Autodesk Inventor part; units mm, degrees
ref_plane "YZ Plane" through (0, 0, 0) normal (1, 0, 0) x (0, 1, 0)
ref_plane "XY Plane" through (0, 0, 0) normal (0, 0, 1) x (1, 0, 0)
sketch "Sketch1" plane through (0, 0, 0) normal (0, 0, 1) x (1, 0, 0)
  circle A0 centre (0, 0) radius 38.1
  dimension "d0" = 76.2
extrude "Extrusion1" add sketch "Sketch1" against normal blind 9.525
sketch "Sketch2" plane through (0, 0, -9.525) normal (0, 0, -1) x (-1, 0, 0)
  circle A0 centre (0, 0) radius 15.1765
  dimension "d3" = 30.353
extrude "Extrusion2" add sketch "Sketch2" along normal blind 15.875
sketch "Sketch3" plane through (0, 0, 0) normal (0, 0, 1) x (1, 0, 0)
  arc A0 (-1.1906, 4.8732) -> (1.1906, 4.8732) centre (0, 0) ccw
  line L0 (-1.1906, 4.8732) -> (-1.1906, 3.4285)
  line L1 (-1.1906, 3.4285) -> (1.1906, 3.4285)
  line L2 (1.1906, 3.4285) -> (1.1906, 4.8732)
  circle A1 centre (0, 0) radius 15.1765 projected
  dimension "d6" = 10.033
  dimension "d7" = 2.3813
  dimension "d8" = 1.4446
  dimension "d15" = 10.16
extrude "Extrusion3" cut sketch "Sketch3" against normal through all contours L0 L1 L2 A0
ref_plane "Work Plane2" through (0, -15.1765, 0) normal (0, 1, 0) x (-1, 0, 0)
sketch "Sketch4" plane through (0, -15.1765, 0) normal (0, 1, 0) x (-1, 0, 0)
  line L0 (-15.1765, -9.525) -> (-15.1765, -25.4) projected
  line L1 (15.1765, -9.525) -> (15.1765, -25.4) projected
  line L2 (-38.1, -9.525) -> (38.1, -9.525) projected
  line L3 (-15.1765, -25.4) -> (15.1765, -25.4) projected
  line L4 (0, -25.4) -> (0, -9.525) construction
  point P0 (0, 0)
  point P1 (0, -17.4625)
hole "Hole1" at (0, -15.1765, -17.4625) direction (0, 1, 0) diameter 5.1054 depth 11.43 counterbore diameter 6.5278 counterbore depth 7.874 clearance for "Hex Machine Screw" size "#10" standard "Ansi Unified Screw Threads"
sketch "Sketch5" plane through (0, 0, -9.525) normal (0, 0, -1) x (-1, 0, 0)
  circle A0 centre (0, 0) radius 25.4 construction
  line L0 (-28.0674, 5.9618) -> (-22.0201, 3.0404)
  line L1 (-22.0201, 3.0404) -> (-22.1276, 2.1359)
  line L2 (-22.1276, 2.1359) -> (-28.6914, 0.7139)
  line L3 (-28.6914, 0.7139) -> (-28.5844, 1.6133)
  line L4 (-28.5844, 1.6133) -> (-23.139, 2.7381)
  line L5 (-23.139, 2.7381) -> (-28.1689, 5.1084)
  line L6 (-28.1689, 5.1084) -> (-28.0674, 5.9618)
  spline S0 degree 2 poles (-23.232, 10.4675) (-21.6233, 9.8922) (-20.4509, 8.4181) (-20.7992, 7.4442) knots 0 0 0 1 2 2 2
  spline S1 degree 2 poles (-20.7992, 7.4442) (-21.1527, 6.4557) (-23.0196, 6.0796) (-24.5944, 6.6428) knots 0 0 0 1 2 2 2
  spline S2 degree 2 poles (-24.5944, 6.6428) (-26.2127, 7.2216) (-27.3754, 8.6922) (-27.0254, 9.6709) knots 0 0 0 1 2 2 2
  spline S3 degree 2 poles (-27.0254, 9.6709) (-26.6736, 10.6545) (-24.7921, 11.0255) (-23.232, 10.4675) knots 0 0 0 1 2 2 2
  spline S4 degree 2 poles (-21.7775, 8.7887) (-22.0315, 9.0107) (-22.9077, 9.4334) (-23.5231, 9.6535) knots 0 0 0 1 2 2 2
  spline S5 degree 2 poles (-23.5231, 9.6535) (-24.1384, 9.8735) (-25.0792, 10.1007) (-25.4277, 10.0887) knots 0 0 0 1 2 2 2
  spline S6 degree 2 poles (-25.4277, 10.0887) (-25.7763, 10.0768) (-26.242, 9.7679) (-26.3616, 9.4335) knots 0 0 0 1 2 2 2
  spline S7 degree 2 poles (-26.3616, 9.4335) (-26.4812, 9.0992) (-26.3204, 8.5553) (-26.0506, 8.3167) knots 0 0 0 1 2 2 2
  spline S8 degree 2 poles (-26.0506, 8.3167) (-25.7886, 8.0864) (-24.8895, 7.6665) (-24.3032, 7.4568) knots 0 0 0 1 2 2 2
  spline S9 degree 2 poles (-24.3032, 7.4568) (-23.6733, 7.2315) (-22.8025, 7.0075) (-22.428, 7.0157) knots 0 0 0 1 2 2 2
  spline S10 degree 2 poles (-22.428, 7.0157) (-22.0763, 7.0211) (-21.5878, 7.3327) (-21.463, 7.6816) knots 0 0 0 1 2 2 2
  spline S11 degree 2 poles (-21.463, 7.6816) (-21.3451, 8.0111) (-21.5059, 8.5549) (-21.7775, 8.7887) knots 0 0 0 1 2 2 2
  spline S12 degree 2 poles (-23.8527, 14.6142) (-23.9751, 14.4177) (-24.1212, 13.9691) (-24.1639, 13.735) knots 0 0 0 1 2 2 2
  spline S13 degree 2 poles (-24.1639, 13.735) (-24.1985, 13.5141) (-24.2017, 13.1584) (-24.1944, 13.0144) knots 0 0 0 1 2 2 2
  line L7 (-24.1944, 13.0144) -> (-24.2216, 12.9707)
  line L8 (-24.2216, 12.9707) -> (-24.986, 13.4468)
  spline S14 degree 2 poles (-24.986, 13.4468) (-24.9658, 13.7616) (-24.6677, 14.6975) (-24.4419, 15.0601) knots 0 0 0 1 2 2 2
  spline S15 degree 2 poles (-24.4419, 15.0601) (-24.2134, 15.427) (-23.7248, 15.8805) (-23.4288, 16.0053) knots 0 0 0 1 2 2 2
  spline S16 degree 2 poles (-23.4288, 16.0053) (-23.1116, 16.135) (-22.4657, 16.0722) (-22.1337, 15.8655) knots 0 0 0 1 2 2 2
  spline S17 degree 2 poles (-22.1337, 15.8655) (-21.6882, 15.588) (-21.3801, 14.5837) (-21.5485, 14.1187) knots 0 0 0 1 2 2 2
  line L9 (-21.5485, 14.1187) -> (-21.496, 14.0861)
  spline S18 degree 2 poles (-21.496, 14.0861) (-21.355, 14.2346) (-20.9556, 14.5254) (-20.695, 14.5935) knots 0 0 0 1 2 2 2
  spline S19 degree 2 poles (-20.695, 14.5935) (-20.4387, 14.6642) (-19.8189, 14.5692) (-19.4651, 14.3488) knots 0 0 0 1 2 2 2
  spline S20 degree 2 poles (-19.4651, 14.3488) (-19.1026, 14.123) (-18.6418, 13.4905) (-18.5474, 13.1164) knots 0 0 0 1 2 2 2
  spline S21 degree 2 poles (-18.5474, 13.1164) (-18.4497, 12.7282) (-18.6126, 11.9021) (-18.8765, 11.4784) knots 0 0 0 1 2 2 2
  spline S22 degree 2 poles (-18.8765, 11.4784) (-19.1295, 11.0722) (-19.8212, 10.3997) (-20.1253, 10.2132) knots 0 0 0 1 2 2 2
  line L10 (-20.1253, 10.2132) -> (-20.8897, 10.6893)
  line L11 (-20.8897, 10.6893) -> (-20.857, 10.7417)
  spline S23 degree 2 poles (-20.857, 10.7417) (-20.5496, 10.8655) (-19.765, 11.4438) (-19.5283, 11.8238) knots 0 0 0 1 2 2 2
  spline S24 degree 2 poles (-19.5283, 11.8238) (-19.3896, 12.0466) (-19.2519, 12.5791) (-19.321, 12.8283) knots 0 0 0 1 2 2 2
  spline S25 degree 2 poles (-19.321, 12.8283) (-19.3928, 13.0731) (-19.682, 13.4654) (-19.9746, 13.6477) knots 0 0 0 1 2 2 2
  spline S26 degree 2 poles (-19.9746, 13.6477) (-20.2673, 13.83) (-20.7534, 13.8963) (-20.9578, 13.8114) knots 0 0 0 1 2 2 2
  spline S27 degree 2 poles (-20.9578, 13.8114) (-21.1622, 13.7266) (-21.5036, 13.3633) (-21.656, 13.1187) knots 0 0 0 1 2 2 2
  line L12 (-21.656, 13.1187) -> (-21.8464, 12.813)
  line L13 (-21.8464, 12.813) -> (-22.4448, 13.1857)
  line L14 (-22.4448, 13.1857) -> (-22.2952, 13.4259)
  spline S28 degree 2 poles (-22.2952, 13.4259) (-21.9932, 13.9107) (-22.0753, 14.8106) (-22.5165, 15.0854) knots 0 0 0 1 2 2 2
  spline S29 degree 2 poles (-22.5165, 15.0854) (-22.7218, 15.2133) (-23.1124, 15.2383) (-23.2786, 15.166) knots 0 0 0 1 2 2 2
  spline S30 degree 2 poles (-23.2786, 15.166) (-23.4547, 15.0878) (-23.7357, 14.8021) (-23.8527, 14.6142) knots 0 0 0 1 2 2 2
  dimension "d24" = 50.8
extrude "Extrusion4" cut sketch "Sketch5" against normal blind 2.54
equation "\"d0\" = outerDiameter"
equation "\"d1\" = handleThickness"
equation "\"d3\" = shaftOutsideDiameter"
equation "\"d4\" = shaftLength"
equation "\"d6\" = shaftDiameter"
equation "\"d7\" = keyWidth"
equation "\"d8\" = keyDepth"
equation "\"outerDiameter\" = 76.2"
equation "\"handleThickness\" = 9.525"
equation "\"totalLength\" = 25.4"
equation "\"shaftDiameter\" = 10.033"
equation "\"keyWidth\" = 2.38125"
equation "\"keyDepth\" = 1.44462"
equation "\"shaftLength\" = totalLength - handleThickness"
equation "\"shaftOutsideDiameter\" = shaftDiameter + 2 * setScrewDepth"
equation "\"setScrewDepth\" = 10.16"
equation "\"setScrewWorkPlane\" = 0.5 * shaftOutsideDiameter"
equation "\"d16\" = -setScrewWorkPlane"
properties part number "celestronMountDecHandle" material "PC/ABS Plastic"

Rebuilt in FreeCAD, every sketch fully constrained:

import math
import FreeCAD as App
import Part
import Sketcher

V = App.Vector
Q = App.Units.Quantity


def add_polygon(sketch, points):
    """Adds a closed chain of lines whose ends are joined by coincident constraints."""
    first, n = sketch.GeometryCount, len(points)
    for a, b in zip(points, points[1:] + points[:1]):
        sketch.addGeometry(Part.LineSegment(App.Vector(*a, 0), App.Vector(*b, 0)), False)
    for i in range(n):
        sketch.addConstraint(Sketcher.Constraint("Coincident", first + i, 2, first + (i + 1) % n, 1))

doc = App.newDocument("Part")
params = doc.addObject("Spreadsheet::Sheet", "Params")
for row, (alias, value) in enumerate([
    ("sketch1_diameter", "3 in"),
    ("pad1_length", "0.375 in"),
    ("sketch2_diameter", "1.195 in"),
    ("pad2_length", "0.625 in"),
    ("sketch3_width", "0.093748 in"),
    ("sketch4_diameter", "0.201 in"),
    ("hole_diameter", "0.201 in"),
    ("hole_depth", "0.45 in"),
    ("hole_cbore_diameter", "0.257 in"),
    ("hole_cbore_depth", "0.31 in"),
    ("pocket2_length", "0.1 in"),
], start=1):
    params.set(f"A{row}", alias)
    params.set(f"B{row}", "=" + value)
    params.setAlias(f"B{row}", alias)

body = doc.addObject("PartDesign::Body", "Body")

sketch1 = body.newObject("Sketcher::SketchObject", "Sketch")
sketch1.AttachmentSupport = (doc.getObject("XY_Plane"), [""])
sketch1.MapMode = "FlatFace"
sketch1.addGeometry(Part.Circle(V(0, 0, 0), V(0, 0, 1), 38.1), False)
sketch1.addConstraint([
    Sketcher.Constraint("Coincident", 0, 3, -1, 1),
    Sketcher.Constraint("Diameter", 0, Q("3 in")),
])
sketch1.setExpression("Constraints[1]", "Params.sketch1_diameter")
pad1 = body.newObject("PartDesign::Pad", "Pad")
pad1.Profile = sketch1
pad1.setExpression("Length", "Params.pad1_length")
pad1.Reversed = True

sketch2 = body.newObject("Sketcher::SketchObject", "Sketch001")
sketch2.AttachmentSupport = (doc.getObject("XY_Plane"), [""])
sketch2.MapMode = "FlatFace"
sketch2.AttachmentOffset = App.Placement(V(0, 0, -0.375 * 25.4), App.Rotation())
sketch2.addGeometry(Part.Circle(V(0, 0, 0), V(0, 0, 1), 15.1765), False)
sketch2.addConstraint([
    Sketcher.Constraint("Coincident", 0, 3, -1, 1),
    Sketcher.Constraint("Diameter", 0, Q("1.195 in")),
])
sketch2.setExpression("Constraints[1]", "Params.sketch2_diameter")
pad2 = body.newObject("PartDesign::Pad", "Pad001")
pad2.Profile = sketch2
pad2.setExpression("Length", "Params.pad2_length")
pad2.Reversed = True

sketch3 = body.newObject("Sketcher::SketchObject", "Sketch002")
sketch3.AttachmentSupport = (doc.getObject("XY_Plane"), [""])
sketch3.MapMode = "FlatFace"
sketch3.addGeometry([
    Part.LineSegment(V(-1.1906, 3.4285, 0), V(-1.1906, 4.8732, 0)),
    Part.ArcOfCircle(Part.Circle(V(0, 0, 0), V(0, 0, 1), 5.016533), math.radians(103.729316), math.radians(436.270684)),
    Part.LineSegment(V(1.1906, 4.8732, 0), V(1.1906, 3.4285, 0)),
    Part.LineSegment(V(1.1906, 3.4285, 0), V(-1.1906, 3.4285, 0)),
], False)
sketch3.addConstraint([
    Sketcher.Constraint("Coincident", 0, 2, 1, 1),
    Sketcher.Constraint("Coincident", 1, 2, 2, 1),
    Sketcher.Constraint("Coincident", 2, 2, 3, 1),
    Sketcher.Constraint("Coincident", 3, 2, 0, 1),
    Sketcher.Constraint("Vertical", 0),
    Sketcher.Constraint("Vertical", 2),
    Sketcher.Constraint("Horizontal", 3),
    Sketcher.Constraint("Coincident", 1, 3, -1, 1),
    Sketcher.Constraint("Horizontal", 0, 2, 1, 2),
    Sketcher.Constraint("Radius", 1, Q("0.1975 in")),
    Sketcher.Constraint("DistanceX", 3, 2, 3, 1, Q("0.093748 in")),
    Sketcher.Constraint("DistanceY", 0, 1, 0, 2, 1.4447),
])
sketch3.setExpression("Constraints[10]", "Params.sketch3_width")
pocket1 = body.newObject("PartDesign::Pocket", "Pocket")
pocket1.Profile = sketch3
pocket1.Type = "ThroughAll"

sketch4 = body.newObject("Sketcher::SketchObject", "Sketch003")
sketch4.AttachmentSupport = (doc.getObject("XZ_Plane"), [""])
sketch4.MapMode = "FlatFace"
sketch4.AttachmentOffset = App.Placement(V(0, 0, 0.5975 * 25.4), App.Rotation())
sketch4.addGeometry(Part.Circle(V(0, -17.4625, 0), V(0, 0, 1), 2.5527), False)
sketch4.addConstraint([
    Sketcher.Constraint("PointOnObject", 0, 3, -2),
    Sketcher.Constraint("Diameter", 0, Q("0.201 in")),
    Sketcher.Constraint("DistanceY", 0, 3, -1, 1, Q("0.6875 in")),
])
sketch4.setExpression("Constraints[1]", "Params.sketch4_diameter")
doc.recompute()
hole = body.newObject("PartDesign::Hole", "Hole")
hole.Profile = sketch4
hole.ThreadType = "None"
hole.setExpression("Diameter", "Params.hole_diameter")
hole.DepthType = "Dimension"
hole.setExpression("Depth", "Params.hole_depth")
hole.DrillPoint = "Flat"
hole.HoleCutType = "Counterbore"
hole.setExpression("HoleCutDiameter", "Params.hole_cbore_diameter")
hole.setExpression("HoleCutDepth", "Params.hole_cbore_depth")

sketch5 = body.newObject("Sketcher::SketchObject", "Sketch004")
sketch5.AttachmentSupport = (doc.getObject("XY_Plane"), [""])
sketch5.MapMode = "FlatFace"
sketch5.AttachmentOffset = App.Placement(V(0, 0, -0.375 * 25.4), App.Rotation())
add_polygon(sketch5, [(22.0201, 3.0404), (28.0674, 5.9618), (28.1689, 5.1084), (23.139, 2.7381), (28.5844, 1.6133), (28.6914, 0.7139), (22.1276, 2.1359)])
sketch5.addGeometry(Part.BSplineCurve([V(23.232, 10.4675, 0), V(21.6233, 9.8922, 0), V(20.4509, 8.4181, 0), V(20.7992, 7.4442, 0)], [3, 1, 3], [0, 1, 2], False, 2, [1, 1, 1, 1], False), False)
sketch5.addGeometry(Part.BSplineCurve([V(27.0254, 9.6709, 0), V(26.6736, 10.6545, 0), V(24.7921, 11.0255, 0), V(23.232, 10.4675, 0)], [3, 1, 3], [0, 1, 2], False, 2, [1, 1, 1, 1], False), False)
sketch5.addGeometry(Part.BSplineCurve([V(24.5944, 6.6428, 0), V(26.2127, 7.2216, 0), V(27.3754, 8.6922, 0), V(27.0254, 9.6709, 0)], [3, 1, 3], [0, 1, 2], False, 2, [1, 1, 1, 1], False), False)
sketch5.addGeometry(Part.BSplineCurve([V(20.7992, 7.4442, 0), V(21.1527, 6.4557, 0), V(23.0196, 6.0796, 0), V(24.5944, 6.6428, 0)], [3, 1, 3], [0, 1, 2], False, 2, [1, 1, 1, 1], False), False)
sketch5.addGeometry(Part.BSplineCurve([V(21.7775, 8.7887, 0), V(22.0315, 9.0107, 0), V(22.9077, 9.4334, 0), V(23.5231, 9.6535, 0)], [3, 1, 3], [0, 1, 2], False, 2, [1, 1, 1, 1], False), False)
sketch5.addGeometry(Part.BSplineCurve([V(21.463, 7.6816, 0), V(21.3451, 8.0111, 0), V(21.5059, 8.5549, 0), V(21.7775, 8.7887, 0)], [3, 1, 3], [0, 1, 2], False, 2, [1, 1, 1, 1], False), False)
sketch5.addGeometry(Part.BSplineCurve([V(22.428, 7.0157, 0), V(22.0763, 7.0211, 0), V(21.5878, 7.3327, 0), V(21.463, 7.6816, 0)], [3, 1, 3], [0, 1, 2], False, 2, [1, 1, 1, 1], False), False)
sketch5.addGeometry(Part.BSplineCurve([V(24.3032, 7.4568, 0), V(23.6733, 7.2315, 0), V(22.8025, 7.0075, 0), V(22.428, 7.0157, 0)], [3, 1, 3], [0, 1, 2], False, 2, [1, 1, 1, 1], False), False)
sketch5.addGeometry(Part.BSplineCurve([V(26.0506, 8.3167, 0), V(25.7886, 8.0864, 0), V(24.8895, 7.6665, 0), V(24.3032, 7.4568, 0)], [3, 1, 3], [0, 1, 2], False, 2, [1, 1, 1, 1], False), False)
sketch5.addGeometry(Part.BSplineCurve([V(26.3616, 9.4335, 0), V(26.4812, 9.0992, 0), V(26.3204, 8.5553, 0), V(26.0506, 8.3167, 0)], [3, 1, 3], [0, 1, 2], False, 2, [1, 1, 1, 1], False), False)
sketch5.addGeometry(Part.BSplineCurve([V(25.4277, 10.0887, 0), V(25.7763, 10.0768, 0), V(26.242, 9.7679, 0), V(26.3616, 9.4335, 0)], [3, 1, 3], [0, 1, 2], False, 2, [1, 1, 1, 1], False), False)
sketch5.addGeometry(Part.BSplineCurve([V(23.5231, 9.6535, 0), V(24.1384, 9.8735, 0), V(25.0792, 10.1007, 0), V(25.4277, 10.0887, 0)], [3, 1, 3], [0, 1, 2], False, 2, [1, 1, 1, 1], False), False)
sketch5.addGeometry(Part.BSplineCurve([V(23.8527, 14.6142, 0), V(23.9751, 14.4177, 0), V(24.1212, 13.9691, 0), V(24.1639, 13.735, 0)], [3, 1, 3], [0, 1, 2], False, 2, [1, 1, 1, 1], False), False)
sketch5.addGeometry(Part.BSplineCurve([V(23.2786, 15.166, 0), V(23.4547, 15.0878, 0), V(23.7357, 14.8021, 0), V(23.8527, 14.6142, 0)], [3, 1, 3], [0, 1, 2], False, 2, [1, 1, 1, 1], False), False)
sketch5.addGeometry(Part.BSplineCurve([V(22.5165, 15.0854, 0), V(22.7218, 15.2133, 0), V(23.1124, 15.2383, 0), V(23.2786, 15.166, 0)], [3, 1, 3], [0, 1, 2], False, 2, [1, 1, 1, 1], False), False)
sketch5.addGeometry(Part.BSplineCurve([V(22.2952, 13.4259, 0), V(21.9932, 13.9107, 0), V(22.0753, 14.8106, 0), V(22.5165, 15.0854, 0)], [3, 1, 3], [0, 1, 2], False, 2, [1, 1, 1, 1], False), False)
sketch5.addGeometry(Part.LineSegment(V(22.2952, 13.4259, 0), V(22.4448, 13.1857, 0)), False)
sketch5.addGeometry(Part.LineSegment(V(22.4448, 13.1857, 0), V(21.8464, 12.813, 0)), False)
sketch5.addGeometry(Part.LineSegment(V(21.8464, 12.813, 0), V(21.656, 13.1187, 0)), False)
sketch5.addGeometry(Part.BSplineCurve([V(20.9578, 13.8114, 0), V(21.1622, 13.7266, 0), V(21.5036, 13.3633, 0), V(21.656, 13.1187, 0)], [3, 1, 3], [0, 1, 2], False, 2, [1, 1, 1, 1], False), False)
sketch5.addGeometry(Part.BSplineCurve([V(19.9746, 13.6477, 0), V(20.2673, 13.83, 0), V(20.7534, 13.8963, 0), V(20.9578, 13.8114, 0)], [3, 1, 3], [0, 1, 2], False, 2, [1, 1, 1, 1], False), False)
sketch5.addGeometry(Part.BSplineCurve([V(19.321, 12.8283, 0), V(19.3928, 13.0731, 0), V(19.682, 13.4654, 0), V(19.9746, 13.6477, 0)], [3, 1, 3], [0, 1, 2], False, 2, [1, 1, 1, 1], False), False)
sketch5.addGeometry(Part.BSplineCurve([V(19.5283, 11.8238, 0), V(19.3896, 12.0466, 0), V(19.2519, 12.5791, 0), V(19.321, 12.8283, 0)], [3, 1, 3], [0, 1, 2], False, 2, [1, 1, 1, 1], False), False)
sketch5.addGeometry(Part.BSplineCurve([V(20.857, 10.7417, 0), V(20.5496, 10.8655, 0), V(19.765, 11.4438, 0), V(19.5283, 11.8238, 0)], [3, 1, 3], [0, 1, 2], False, 2, [1, 1, 1, 1], False), False)
sketch5.addGeometry(Part.LineSegment(V(20.857, 10.7417, 0), V(20.8897, 10.6893, 0)), False)
sketch5.addGeometry(Part.LineSegment(V(20.8897, 10.6893, 0), V(20.1253, 10.2132, 0)), False)
sketch5.addGeometry(Part.BSplineCurve([V(18.8765, 11.4784, 0), V(19.1295, 11.0722, 0), V(19.8212, 10.3997, 0), V(20.1253, 10.2132, 0)], [3, 1, 3], [0, 1, 2], False, 2, [1, 1, 1, 1], False), False)
sketch5.addGeometry(Part.BSplineCurve([V(18.5474, 13.1164, 0), V(18.4497, 12.7282, 0), V(18.6126, 11.9021, 0), V(18.8765, 11.4784, 0)], [3, 1, 3], [0, 1, 2], False, 2, [1, 1, 1, 1], False), False)
sketch5.addGeometry(Part.BSplineCurve([V(19.4651, 14.3488, 0), V(19.1026, 14.123, 0), V(18.6418, 13.4905, 0), V(18.5474, 13.1164, 0)], [3, 1, 3], [0, 1, 2], False, 2, [1, 1, 1, 1], False), False)
sketch5.addGeometry(Part.BSplineCurve([V(20.695, 14.5935, 0), V(20.4387, 14.6642, 0), V(19.8189, 14.5692, 0), V(19.4651, 14.3488, 0)], [3, 1, 3], [0, 1, 2], False, 2, [1, 1, 1, 1], False), False)
sketch5.addGeometry(Part.BSplineCurve([V(21.496, 14.0861, 0), V(21.355, 14.2346, 0), V(20.9556, 14.5254, 0), V(20.695, 14.5935, 0)], [3, 1, 3], [0, 1, 2], False, 2, [1, 1, 1, 1], False), False)
sketch5.addGeometry(Part.LineSegment(V(21.496, 14.0861, 0), V(21.5485, 14.1187, 0)), False)
sketch5.addGeometry(Part.BSplineCurve([V(22.1337, 15.8655, 0), V(21.6882, 15.588, 0), V(21.3801, 14.5837, 0), V(21.5485, 14.1187, 0)], [3, 1, 3], [0, 1, 2], False, 2, [1, 1, 1, 1], False), False)
sketch5.addGeometry(Part.BSplineCurve([V(23.4288, 16.0053, 0), V(23.1116, 16.135, 0), V(22.4657, 16.0722, 0), V(22.1337, 15.8655, 0)], [3, 1, 3], [0, 1, 2], False, 2, [1, 1, 1, 1], False), False)
sketch5.addGeometry(Part.BSplineCurve([V(24.4419, 15.0601, 0), V(24.2134, 15.427, 0), V(23.7248, 15.8805, 0), V(23.4288, 16.0053, 0)], [3, 1, 3], [0, 1, 2], False, 2, [1, 1, 1, 1], False), False)
sketch5.addGeometry(Part.BSplineCurve([V(24.986, 13.4468, 0), V(24.9658, 13.7616, 0), V(24.6677, 14.6975, 0), V(24.4419, 15.0601, 0)], [3, 1, 3], [0, 1, 2], False, 2, [1, 1, 1, 1], False), False)
sketch5.addGeometry(Part.LineSegment(V(24.986, 13.4468, 0), V(24.2216, 12.9707, 0)), False)
sketch5.addGeometry(Part.LineSegment(V(24.2216, 12.9707, 0), V(24.1944, 13.0144, 0)), False)
sketch5.addGeometry(Part.BSplineCurve([V(24.1639, 13.735, 0), V(24.1985, 13.5141, 0), V(24.2017, 13.1584, 0), V(24.1944, 13.0144, 0)], [3, 1, 3], [0, 1, 2], False, 2, [1, 1, 1, 1], False), False)
sketch5.addConstraint([
    Sketcher.Constraint("Block", 7),
    Sketcher.Constraint("Block", 8),
    Sketcher.Constraint("Block", 9),
    Sketcher.Constraint("Block", 10),
    Sketcher.Constraint("Block", 11),
    Sketcher.Constraint("Block", 12),
    Sketcher.Constraint("Block", 13),
    Sketcher.Constraint("Block", 14),
    Sketcher.Constraint("Block", 15),
    Sketcher.Constraint("Block", 16),
    Sketcher.Constraint("Block", 17),
    Sketcher.Constraint("Block", 18),
    Sketcher.Constraint("Block", 19),
    Sketcher.Constraint("Block", 20),
    Sketcher.Constraint("Block", 21),
    Sketcher.Constraint("Block", 22),
    Sketcher.Constraint("Block", 26),
    Sketcher.Constraint("Block", 27),
    Sketcher.Constraint("Block", 28),
    Sketcher.Constraint("Block", 29),
    Sketcher.Constraint("Block", 30),
    Sketcher.Constraint("Block", 33),
    Sketcher.Constraint("Block", 34),
    Sketcher.Constraint("Block", 35),
    Sketcher.Constraint("Block", 36),
    Sketcher.Constraint("Block", 37),
    Sketcher.Constraint("Block", 39),
    Sketcher.Constraint("Block", 40),
    Sketcher.Constraint("Block", 41),
    Sketcher.Constraint("Block", 42),
    Sketcher.Constraint("Block", 45),
    Sketcher.Constraint("Coincident", 22, 1, 23, 1),
    Sketcher.Constraint("Coincident", 23, 2, 24, 1),
    Sketcher.Constraint("Coincident", 24, 2, 25, 1),
    Sketcher.Constraint("Coincident", 25, 2, 26, 2),
    Sketcher.Constraint("Coincident", 30, 1, 31, 1),
    Sketcher.Constraint("Coincident", 31, 2, 32, 1),
    Sketcher.Constraint("Coincident", 32, 2, 33, 2),
    Sketcher.Constraint("Coincident", 37, 1, 38, 1),
    Sketcher.Constraint("Coincident", 38, 2, 39, 2),
    Sketcher.Constraint("Coincident", 42, 1, 43, 1),
    Sketcher.Constraint("Coincident", 43, 2, 44, 1),
    Sketcher.Constraint("Coincident", 44, 2, 45, 2),
    Sketcher.Constraint("DistanceX", -1, 1, 1, 2, Q("1.109 in")),
    Sketcher.Constraint("DistanceX", 0, 2, 1, 2, Q("0.004 in")),
    Sketcher.Constraint("DistanceY", 4, 2, 1, 2, Q("0.173 in")),
    Sketcher.Constraint("DistanceY", 1, 2, 23, 2, Q("0.318 in")),
    Sketcher.Constraint("DistanceX", 25, 2, 43, 2, Q("0.101 in")),
    Sketcher.Constraint("Distance", 0, Q("0.2644 in")),
    Sketcher.Constraint("Distance", 3, Q("0.2189 in")),
    Sketcher.Constraint("DistanceY", -1, 1, 2, 2, Q("0.1078 in")),
    Sketcher.Constraint("DistanceY", -1, 1, 4, 2, Q("0.0281 in")),
    Sketcher.Constraint("DistanceY", -1, 1, 5, 2, Q("0.0841 in")),
    Sketcher.Constraint("DistanceY", -1, 1, 6, 2, Q("0.1197 in")),
    Sketcher.Constraint("DistanceX", -1, 1, 24, 2, Q("0.8601 in")),
    Sketcher.Constraint("DistanceY", 1, 2, 0, 2, Q("0.0336 in")),
    Sketcher.Constraint("DistanceY", 3, 2, 1, 2, Q("0.1376 in")),
    Sketcher.Constraint("DistanceX", 2, 2, 4, 2, Q("0.2186 in")),
    Sketcher.Constraint("DistanceX", 5, 2, 3, 2, Q("0.2542 in")),
    Sketcher.Constraint("DistanceX", 5, 2, 23, 2, Q("0.0125 in")),
    Sketcher.Constraint("DistanceX", 24, 2, 2, 2, Q("0.0509 in")),
    Sketcher.Constraint("DistanceY", 31, 2, 24, 2, Q("0.0836 in")),
    Sketcher.Constraint("DistanceX", 31, 2, 6, 2, Q("0.0445 in")),
    Sketcher.Constraint("DistanceY", 24, 2, 38, 2, Q("0.0514 in")),
    Sketcher.Constraint("DistanceY", 24, 2, 43, 2, Q("0.0062 in")),
])
pocket2 = body.newObject("PartDesign::Pocket", "Pocket001")
pocket2.Profile = sketch5
pocket2.setExpression("Length", "Params.pocket2_length")
pocket2.Reversed = True

doc.recompute()
